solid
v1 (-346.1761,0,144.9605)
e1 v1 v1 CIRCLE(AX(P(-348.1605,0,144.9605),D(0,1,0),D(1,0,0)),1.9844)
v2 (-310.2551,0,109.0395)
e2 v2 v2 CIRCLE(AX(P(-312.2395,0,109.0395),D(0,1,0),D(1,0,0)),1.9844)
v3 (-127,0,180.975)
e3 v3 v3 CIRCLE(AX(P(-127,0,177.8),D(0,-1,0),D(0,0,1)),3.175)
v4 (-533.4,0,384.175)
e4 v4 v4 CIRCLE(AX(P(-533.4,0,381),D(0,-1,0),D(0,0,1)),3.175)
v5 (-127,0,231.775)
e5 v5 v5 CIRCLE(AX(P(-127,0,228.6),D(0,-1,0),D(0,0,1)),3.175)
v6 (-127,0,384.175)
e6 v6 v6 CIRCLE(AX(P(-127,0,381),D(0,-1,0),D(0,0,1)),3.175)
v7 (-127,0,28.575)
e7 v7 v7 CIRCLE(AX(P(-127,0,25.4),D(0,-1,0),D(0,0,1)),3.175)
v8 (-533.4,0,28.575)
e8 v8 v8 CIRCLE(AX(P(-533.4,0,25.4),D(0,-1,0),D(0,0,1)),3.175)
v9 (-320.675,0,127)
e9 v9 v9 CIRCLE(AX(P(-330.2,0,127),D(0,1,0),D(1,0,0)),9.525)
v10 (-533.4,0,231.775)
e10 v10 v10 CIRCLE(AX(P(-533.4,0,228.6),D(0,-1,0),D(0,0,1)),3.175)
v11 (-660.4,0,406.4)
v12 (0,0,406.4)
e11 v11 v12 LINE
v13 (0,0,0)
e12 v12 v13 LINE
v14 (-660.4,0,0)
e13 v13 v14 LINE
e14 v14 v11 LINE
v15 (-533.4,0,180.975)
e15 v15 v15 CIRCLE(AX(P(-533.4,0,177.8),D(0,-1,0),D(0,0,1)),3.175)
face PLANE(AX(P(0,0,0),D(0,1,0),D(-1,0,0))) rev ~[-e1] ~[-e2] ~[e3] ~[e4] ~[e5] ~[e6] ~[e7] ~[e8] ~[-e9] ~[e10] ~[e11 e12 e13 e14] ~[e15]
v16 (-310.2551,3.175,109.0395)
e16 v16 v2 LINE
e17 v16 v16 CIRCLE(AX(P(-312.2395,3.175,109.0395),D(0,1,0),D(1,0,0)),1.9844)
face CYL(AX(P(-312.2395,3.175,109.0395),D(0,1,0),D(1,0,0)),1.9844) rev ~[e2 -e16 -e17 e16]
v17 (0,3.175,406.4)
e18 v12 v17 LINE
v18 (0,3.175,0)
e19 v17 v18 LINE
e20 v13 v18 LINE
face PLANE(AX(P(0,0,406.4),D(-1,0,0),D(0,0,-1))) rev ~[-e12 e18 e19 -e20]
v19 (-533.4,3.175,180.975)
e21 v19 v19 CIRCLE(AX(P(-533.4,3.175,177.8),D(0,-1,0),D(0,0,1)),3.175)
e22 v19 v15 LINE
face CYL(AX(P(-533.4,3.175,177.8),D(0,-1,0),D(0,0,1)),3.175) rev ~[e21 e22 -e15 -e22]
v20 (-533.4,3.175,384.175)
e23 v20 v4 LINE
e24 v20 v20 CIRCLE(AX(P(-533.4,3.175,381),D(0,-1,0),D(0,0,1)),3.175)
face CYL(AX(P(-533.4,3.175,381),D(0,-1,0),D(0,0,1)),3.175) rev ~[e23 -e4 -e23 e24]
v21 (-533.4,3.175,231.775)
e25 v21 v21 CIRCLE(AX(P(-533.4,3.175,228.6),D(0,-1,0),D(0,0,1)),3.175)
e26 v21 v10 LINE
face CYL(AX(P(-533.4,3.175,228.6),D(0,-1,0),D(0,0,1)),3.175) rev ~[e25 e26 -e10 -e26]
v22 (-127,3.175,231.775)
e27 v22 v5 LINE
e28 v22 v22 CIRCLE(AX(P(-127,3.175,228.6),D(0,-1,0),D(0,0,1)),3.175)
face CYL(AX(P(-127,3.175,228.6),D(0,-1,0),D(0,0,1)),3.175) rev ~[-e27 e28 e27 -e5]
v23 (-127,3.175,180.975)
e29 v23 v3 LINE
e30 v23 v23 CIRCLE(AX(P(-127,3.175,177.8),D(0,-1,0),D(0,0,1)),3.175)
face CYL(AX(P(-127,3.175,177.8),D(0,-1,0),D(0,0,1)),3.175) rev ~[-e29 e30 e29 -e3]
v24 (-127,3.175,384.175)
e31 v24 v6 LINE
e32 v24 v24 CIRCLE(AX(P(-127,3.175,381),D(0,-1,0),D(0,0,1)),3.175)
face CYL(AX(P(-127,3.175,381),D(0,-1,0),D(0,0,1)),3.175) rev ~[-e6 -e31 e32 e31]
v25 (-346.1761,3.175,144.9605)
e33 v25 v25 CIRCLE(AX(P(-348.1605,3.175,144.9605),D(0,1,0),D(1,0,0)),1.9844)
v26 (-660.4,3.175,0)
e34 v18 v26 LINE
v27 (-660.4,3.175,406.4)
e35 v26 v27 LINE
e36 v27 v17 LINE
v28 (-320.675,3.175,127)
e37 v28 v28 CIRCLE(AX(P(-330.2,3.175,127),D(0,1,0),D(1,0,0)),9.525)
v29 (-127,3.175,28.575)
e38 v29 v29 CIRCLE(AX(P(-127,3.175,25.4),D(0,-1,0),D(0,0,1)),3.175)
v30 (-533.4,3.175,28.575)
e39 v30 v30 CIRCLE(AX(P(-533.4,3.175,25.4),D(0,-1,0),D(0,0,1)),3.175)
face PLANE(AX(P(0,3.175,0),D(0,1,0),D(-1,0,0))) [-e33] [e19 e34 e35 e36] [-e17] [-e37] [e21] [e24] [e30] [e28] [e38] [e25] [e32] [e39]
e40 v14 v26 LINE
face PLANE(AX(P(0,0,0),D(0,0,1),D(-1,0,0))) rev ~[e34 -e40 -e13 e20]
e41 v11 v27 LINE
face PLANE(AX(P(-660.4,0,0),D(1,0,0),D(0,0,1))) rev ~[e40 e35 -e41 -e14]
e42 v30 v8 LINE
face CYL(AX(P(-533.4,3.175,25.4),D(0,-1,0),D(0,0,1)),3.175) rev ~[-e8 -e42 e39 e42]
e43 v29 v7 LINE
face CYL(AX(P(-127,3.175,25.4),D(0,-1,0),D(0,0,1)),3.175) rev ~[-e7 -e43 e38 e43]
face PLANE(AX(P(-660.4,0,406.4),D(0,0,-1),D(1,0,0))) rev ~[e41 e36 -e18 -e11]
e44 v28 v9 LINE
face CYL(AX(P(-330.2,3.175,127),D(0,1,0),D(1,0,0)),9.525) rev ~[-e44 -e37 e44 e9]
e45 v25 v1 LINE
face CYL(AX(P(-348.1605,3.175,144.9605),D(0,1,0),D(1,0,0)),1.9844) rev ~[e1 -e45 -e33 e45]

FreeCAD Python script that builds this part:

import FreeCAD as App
import Part
import Sketcher
from FreeCAD import Vector
Q = App.Units.Quantity

doc = App.newDocument("Part")
params = doc.addObject("Spreadsheet::Sheet", "Params")
for row, (alias, value) in enumerate([
    ("sketch1_width", "26 in"),
    ("sketch1_height", "16 in"),
    ("pad1_length", "0.125 in"),
    ("sketch2_diameter", "0.25 in"),
    ("hole_diameter", "0.25 in"),
    ("sketch3_diameter", "0.25 in"),
    ("hole2_diameter", "0.25 in"),
    ("sketch4_diameter", "0.75 in"),
    ("sketch4_diameter2", "0.156252 in"),
    ("pocket1_length", "0.125 in"),
], start=1):
    params.set(f"A{row}", alias)
    params.set(f"B{row}", "=" + value)
    params.setAlias(f"B{row}", alias)

body = doc.addObject("PartDesign::Body", "Body")

# Sketch on XZ plane
sketch1 = body.newObject("Sketcher::SketchObject", "Sketch")
sketch1.AttachmentSupport = (doc.getObject("XZ_Plane"), [""])
sketch1.MapMode = "FlatFace"
sketch1.addGeometry([
    Part.LineSegment(Vector(0, 406.4, 0), Vector(0, 0, 0)),
    Part.LineSegment(Vector(0, 0, 0), Vector(-660.4, 0, 0)),
    Part.LineSegment(Vector(-660.4, 0, 0), Vector(-660.4, 406.4, 0)),
    Part.LineSegment(Vector(-660.4, 406.4, 0), Vector(0, 406.4, 0)),
], False)
sketch1.addConstraint([
    Sketcher.Constraint("Coincident", 0, 2, 1, 1),
    Sketcher.Constraint("Coincident", 1, 2, 2, 1),
    Sketcher.Constraint("Coincident", 2, 2, 3, 1),
    Sketcher.Constraint("Coincident", 3, 2, 0, 1),
    Sketcher.Constraint("Vertical", 0),
    Sketcher.Constraint("Horizontal", 1),
    Sketcher.Constraint("Vertical", 2),
    Sketcher.Constraint("Horizontal", 3),
    Sketcher.Constraint("Coincident", 0, 2, -1, 1),
    Sketcher.Constraint("DistanceX", 1, 2, 1, 1, Q("26 in")),
    Sketcher.Constraint("DistanceY", 0, 2, 0, 1, Q("16 in")),
])
sketch1.setExpression("Constraints[9]", "Params.sketch1_width")
sketch1.setExpression("Constraints[10]", "Params.sketch1_height")
pad1 = body.newObject("PartDesign::Pad", "Pad")
pad1.Profile = sketch1
pad1.setExpression("Length", "Params.pad1_length")
pad1.Reversed = True

# Sketch on XZ plane
sketch2 = body.newObject("Sketcher::SketchObject", "Sketch001")
sketch2.AttachmentSupport = (doc.getObject("XZ_Plane"), [""])
sketch2.MapMode = "FlatFace"
sketch2.AttachmentOffset = App.Placement(Vector(0, 0, -0.125 * 25.4), App.Rotation())
sketch2.addGeometry([
    Part.Circle(Vector(-127, 381, 0), Vector(0, 0, 1), 3.175),
    Part.Circle(Vector(-533.4, 381, 0), Vector(0, 0, 1), 3.175),
    Part.Circle(Vector(-533.4, 25.4, 0), Vector(0, 0, 1), 3.175),
    Part.Circle(Vector(-127, 25.4, 0), Vector(0, 0, 1), 3.175),
], False)
sketch2.addConstraint([
    Sketcher.Constraint("Equal", 0, 1),
    Sketcher.Constraint("Equal", 1, 2),
    Sketcher.Constraint("Equal", 2, 3),
    Sketcher.Constraint("Horizontal", 0, 3, 1, 3),
    Sketcher.Constraint("Horizontal", 2, 3, 3, 3),
    Sketcher.Constraint("Vertical", 1, 3, 2, 3),
    Sketcher.Constraint("Vertical", 0, 3, 3, 3),
    Sketcher.Constraint("Diameter", 0, Q("0.25 in")),
    Sketcher.Constraint("DistanceX", 0, 3, -1, 1, Q("5 in")),
    Sketcher.Constraint("DistanceY", -1, 1, 0, 3, Q("15 in")),
    Sketcher.Constraint("DistanceX", 1, 3, -1, 1, Q("21 in")),
    Sketcher.Constraint("DistanceY", -1, 1, 2, 3, Q("1 in")),
])
sketch2.setExpression("Constraints[7]", "Params.sketch2_diameter")
doc.recompute()
hole = body.newObject("PartDesign::Hole", "Hole")
hole.Profile = sketch2
hole.ThreadType = "None"
hole.setExpression("Diameter", "Params.hole_diameter")
hole.DepthType = "ThroughAll"
hole.Reversed = True

# Sketch on XZ plane
sketch3 = body.newObject("Sketcher::SketchObject", "Sketch002")
sketch3.AttachmentSupport = (doc.getObject("XZ_Plane"), [""])
sketch3.MapMode = "FlatFace"
sketch3.AttachmentOffset = App.Placement(Vector(0, 0, -0.125 * 25.4), App.Rotation())
sketch3.addGeometry([
    Part.Circle(Vector(-127, 228.6, 0), Vector(0, 0, 1), 3.175),
    Part.Circle(Vector(-127, 177.8, 0), Vector(0, 0, 1), 3.175),
    Part.Circle(Vector(-533.4, 177.8, 0), Vector(0, 0, 1), 3.175),
    Part.Circle(Vector(-533.4, 228.6, 0), Vector(0, 0, 1), 3.175),
], False)
sketch3.addConstraint([
    Sketcher.Constraint("Equal", 0, 1),
    Sketcher.Constraint("Equal", 1, 2),
    Sketcher.Constraint("Equal", 2, 3),
    Sketcher.Constraint("Horizontal", 1, 3, 2, 3),
    Sketcher.Constraint("Horizontal", 0, 3, 3, 3),
    Sketcher.Constraint("Vertical", 0, 3, 1, 3),
    Sketcher.Constraint("Vertical", 2, 3, 3, 3),
    Sketcher.Constraint("Diameter", 0, Q("0.25 in")),
    Sketcher.Constraint("DistanceX", 0, 3, -1, 1, Q("5 in")),
    Sketcher.Constraint("DistanceY", -1, 1, 0, 3, Q("9 in")),
    Sketcher.Constraint("DistanceY", -1, 1, 1, 3, Q("7 in")),
    Sketcher.Constraint("DistanceX", 2, 3, -1, 1, Q("21 in")),
])
sketch3.setExpression("Constraints[7]", "Params.sketch3_diameter")
doc.recompute()
hole2 = body.newObject("PartDesign::Hole", "Hole001")
hole2.Profile = sketch3
hole2.ThreadType = "None"
hole2.setExpression("Diameter", "Params.hole2_diameter")
hole2.DepthType = "ThroughAll"
hole2.Reversed = True

# Sketch on XZ plane
sketch4 = body.newObject("Sketcher::SketchObject", "Sketch003")
sketch4.AttachmentSupport = (doc.getObject("XZ_Plane"), [""])
sketch4.MapMode = "FlatFace"
sketch4.AttachmentOffset = App.Placement(Vector(0, 0, -0.125 * 25.4), App.Rotation())
sketch4.addGeometry([
    Part.Circle(Vector(-330.2, 127, 0), Vector(0, 0, 1), 9.525),
    Part.Circle(Vector(-348.1605, 144.9605, 0), Vector(0, 0, 1), 1.9844),
    Part.Circle(Vector(-312.2395, 109.0395, 0), Vector(0, 0, 1), 1.9844),
], False)
sketch4.addConstraint([
    Sketcher.Constraint("Equal", 1, 2),
    Sketcher.Constraint("Diameter", 0, Q("0.75 in")),
    Sketcher.Constraint("Diameter", 1, Q("0.156252 in")),
    Sketcher.Constraint("DistanceX", 0, 3, -1, 1, Q("13 in")),
    Sketcher.Constraint("DistanceY", -1, 1, 0, 3, Q("5 in")),
    Sketcher.Constraint("DistanceX", 1, 3, -1, 1, Q("13.7071 in")),
    Sketcher.Constraint("DistanceY", -1, 1, 1, 3, Q("5.7071 in")),
    Sketcher.Constraint("DistanceX", 2, 3, -1, 1, Q("12.2929 in")),
    Sketcher.Constraint("DistanceY", -1, 1, 2, 3, Q("4.2929 in")),
])
sketch4.setExpression("Constraints[1]", "Params.sketch4_diameter")
sketch4.setExpression("Constraints[2]", "Params.sketch4_diameter2")
pocket1 = body.newObject("PartDesign::Pocket", "Pocket")
pocket1.Profile = sketch4
pocket1.setExpression("Length", "Params.pocket1_length")
pocket1.Reversed = True

doc.recompute()
